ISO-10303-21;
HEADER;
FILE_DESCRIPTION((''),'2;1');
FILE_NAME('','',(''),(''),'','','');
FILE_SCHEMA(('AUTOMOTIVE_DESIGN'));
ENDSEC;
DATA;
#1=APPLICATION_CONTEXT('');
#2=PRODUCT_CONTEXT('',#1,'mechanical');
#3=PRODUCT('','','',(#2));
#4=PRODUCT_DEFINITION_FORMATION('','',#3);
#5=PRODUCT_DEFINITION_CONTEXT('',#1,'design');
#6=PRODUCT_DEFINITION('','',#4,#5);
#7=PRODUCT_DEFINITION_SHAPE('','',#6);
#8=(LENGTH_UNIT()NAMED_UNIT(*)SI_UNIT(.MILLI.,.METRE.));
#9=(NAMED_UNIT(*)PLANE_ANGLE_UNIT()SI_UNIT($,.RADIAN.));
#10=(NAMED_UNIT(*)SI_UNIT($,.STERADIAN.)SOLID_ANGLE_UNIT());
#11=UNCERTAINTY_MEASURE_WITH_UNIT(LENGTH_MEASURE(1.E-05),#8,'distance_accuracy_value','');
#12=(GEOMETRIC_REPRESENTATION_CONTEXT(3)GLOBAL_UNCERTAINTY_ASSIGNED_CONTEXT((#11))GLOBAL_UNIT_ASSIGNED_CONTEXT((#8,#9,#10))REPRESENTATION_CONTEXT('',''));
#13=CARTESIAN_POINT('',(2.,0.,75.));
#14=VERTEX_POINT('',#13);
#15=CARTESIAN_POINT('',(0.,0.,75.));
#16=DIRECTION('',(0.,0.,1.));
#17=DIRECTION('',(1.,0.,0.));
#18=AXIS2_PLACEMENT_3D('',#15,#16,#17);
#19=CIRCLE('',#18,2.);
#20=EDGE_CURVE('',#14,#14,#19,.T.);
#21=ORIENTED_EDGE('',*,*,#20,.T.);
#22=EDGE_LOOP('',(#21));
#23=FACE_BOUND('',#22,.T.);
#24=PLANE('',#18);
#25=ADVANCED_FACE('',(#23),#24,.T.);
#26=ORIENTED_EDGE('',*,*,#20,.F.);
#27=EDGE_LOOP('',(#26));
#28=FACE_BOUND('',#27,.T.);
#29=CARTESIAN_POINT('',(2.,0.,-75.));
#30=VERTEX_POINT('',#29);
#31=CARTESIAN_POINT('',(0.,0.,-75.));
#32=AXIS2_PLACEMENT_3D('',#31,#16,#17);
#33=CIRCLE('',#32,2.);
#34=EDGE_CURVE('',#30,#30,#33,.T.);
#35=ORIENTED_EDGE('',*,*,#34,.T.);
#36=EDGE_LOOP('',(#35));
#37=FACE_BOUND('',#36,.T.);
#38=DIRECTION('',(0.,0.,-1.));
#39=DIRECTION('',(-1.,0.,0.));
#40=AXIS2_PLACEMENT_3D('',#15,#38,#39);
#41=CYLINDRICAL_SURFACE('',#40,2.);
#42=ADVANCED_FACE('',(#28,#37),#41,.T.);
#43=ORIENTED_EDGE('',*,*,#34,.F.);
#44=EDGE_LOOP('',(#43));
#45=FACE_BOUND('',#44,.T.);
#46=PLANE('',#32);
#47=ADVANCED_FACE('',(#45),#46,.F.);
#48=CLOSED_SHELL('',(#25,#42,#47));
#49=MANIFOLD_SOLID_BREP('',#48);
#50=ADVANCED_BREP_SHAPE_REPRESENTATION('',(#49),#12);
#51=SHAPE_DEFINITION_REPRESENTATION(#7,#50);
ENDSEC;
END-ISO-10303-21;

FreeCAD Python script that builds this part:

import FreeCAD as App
import Part
import Sketcher
from FreeCAD import Vector

doc = App.newDocument("Part")
body = doc.addObject("PartDesign::Body", "Body")

sketch1 = body.newObject("Sketcher::SketchObject", "Sketch")
sketch1.AttachmentSupport = (doc.getObject("XY_Plane"), [""])
sketch1.MapMode = "FlatFace"
sketch1.addGeometry(Part.Circle(Vector(0, 0, 0), Vector(0, 0, 1), 2), False)
sketch1.addConstraint([
    Sketcher.Constraint("Coincident", 0, 3, -1, 1),
    Sketcher.Constraint("Diameter", 0, 4.0),
])
pad1 = body.newObject("PartDesign::Pad", "Pad")
pad1.Profile = sketch1
pad1.Length = 150
pad1.Midplane = True

doc.recompute()
